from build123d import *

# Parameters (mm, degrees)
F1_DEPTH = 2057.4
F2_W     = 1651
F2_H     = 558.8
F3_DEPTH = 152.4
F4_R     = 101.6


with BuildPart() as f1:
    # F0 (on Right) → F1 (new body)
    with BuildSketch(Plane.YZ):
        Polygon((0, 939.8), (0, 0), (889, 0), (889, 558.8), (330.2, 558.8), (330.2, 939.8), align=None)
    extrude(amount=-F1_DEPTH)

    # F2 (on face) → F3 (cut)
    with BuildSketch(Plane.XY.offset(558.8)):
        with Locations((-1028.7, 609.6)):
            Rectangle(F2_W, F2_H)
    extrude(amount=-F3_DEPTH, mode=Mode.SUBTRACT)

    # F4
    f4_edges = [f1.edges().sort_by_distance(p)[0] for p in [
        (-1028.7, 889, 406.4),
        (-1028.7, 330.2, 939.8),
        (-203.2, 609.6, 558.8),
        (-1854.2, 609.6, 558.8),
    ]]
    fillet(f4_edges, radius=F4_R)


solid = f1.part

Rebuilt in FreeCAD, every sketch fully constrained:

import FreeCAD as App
import Part
import Sketcher
Q = App.Units.Quantity


def edges_at(feature, points):
    """Names of the edges that pass closest to the given points."""
    edges = feature.Shape.Edges
    near = lambda p: min(range(len(edges)), key=lambda i: edges[i].distToShape(Part.Vertex(*p))[0])
    return sorted({f"Edge{near(p) + 1}" for p in points})

doc = App.newDocument("Part")
body = doc.addObject("PartDesign::Body", "Body")

sketch1 = body.newObject("Sketcher::SketchObject", "Sketch")
sketch1.AttachmentSupport = (doc.getObject("YZ_Plane"), [""])
sketch1.MapMode = "FlatFace"
sketch1.addGeometry(Part.LineSegment(App.Vector(0, 940, 0), App.Vector(0, 0, 0)), False)
sketch1.addGeometry(Part.LineSegment(App.Vector(0, 0, 0), App.Vector(889, 0, 0)), False)
sketch1.addGeometry(Part.LineSegment(App.Vector(889, 0, 0), App.Vector(889, 559, 0)), False)
sketch1.addGeometry(Part.LineSegment(App.Vector(889, 559, 0), App.Vector(330, 559, 0)), False)
sketch1.addGeometry(Part.LineSegment(App.Vector(330, 559, 0), App.Vector(330, 940, 0)), False)
sketch1.addGeometry(Part.LineSegment(App.Vector(330, 940, 0), App.Vector(0, 940, 0)), False)
sketch1.addConstraint(Sketcher.Constraint("Coincident", 0, 2, 1, 1))
sketch1.addConstraint(Sketcher.Constraint("Coincident", 1, 2, 2, 1))
sketch1.addConstraint(Sketcher.Constraint("Coincident", 2, 2, 3, 1))
sketch1.addConstraint(Sketcher.Constraint("Coincident", 3, 2, 4, 1))
sketch1.addConstraint(Sketcher.Constraint("Coincident", 4, 2, 5, 1))
sketch1.addConstraint(Sketcher.Constraint("Coincident", 5, 2, 0, 1))
sketch1.addConstraint(Sketcher.Constraint("Vertical", 0))
sketch1.addConstraint(Sketcher.Constraint("Horizontal", 1))
sketch1.addConstraint(Sketcher.Constraint("Vertical", 2))
sketch1.addConstraint(Sketcher.Constraint("Horizontal", 3))
sketch1.addConstraint(Sketcher.Constraint("Vertical", 4))
sketch1.addConstraint(Sketcher.Constraint("Horizontal", 5))
sketch1.addConstraint(Sketcher.Constraint("Coincident", 0, 2, -1, 1))
sketch1.addConstraint(Sketcher.Constraint("Equal", 3, 2))
sketch1.addConstraint(Sketcher.Constraint("DistanceX", 1, 1, 1, 2, Q("35 in")))
sketch1.addConstraint(Sketcher.Constraint("DistanceX", 3, 2, 3, 1, Q("22 in")))
sketch1.addConstraint(Sketcher.Constraint("DistanceY", 0, 2, 0, 1, Q("37 in")))
pad1 = body.newObject("PartDesign::Pad", "Pad")
pad1.Profile = sketch1
pad1.Length = Q("81 in")
pad1.Reversed = True

sketch2 = body.newObject("Sketcher::SketchObject", "Sketch001")
sketch2.AttachmentSupport = (doc.getObject("XY_Plane"), [""])
sketch2.MapMode = "FlatFace"
sketch2.AttachmentOffset = App.Placement(App.Vector(0, 0, 22 * 25.4), App.Rotation())
sketch2.addGeometry(Part.LineSegment(App.Vector(-1854, 889, 0), App.Vector(-1854, 330, 0)), False)
sketch2.addGeometry(Part.LineSegment(App.Vector(-1854, 330, 0), App.Vector(-203, 330, 0)), False)
sketch2.addGeometry(Part.LineSegment(App.Vector(-203, 330, 0), App.Vector(-203, 889, 0)), False)
sketch2.addGeometry(Part.LineSegment(App.Vector(-203, 889, 0), App.Vector(-1854, 889, 0)), False)
sketch2.addConstraint(Sketcher.Constraint("Coincident", 0, 2, 1, 1))
sketch2.addConstraint(Sketcher.Constraint("Coincident", 1, 2, 2, 1))
sketch2.addConstraint(Sketcher.Constraint("Coincident", 2, 2, 3, 1))
sketch2.addConstraint(Sketcher.Constraint("Coincident", 3, 2, 0, 1))
sketch2.addConstraint(Sketcher.Constraint("Vertical", 0))
sketch2.addConstraint(Sketcher.Constraint("Horizontal", 1))
sketch2.addConstraint(Sketcher.Constraint("Vertical", 2))
sketch2.addConstraint(Sketcher.Constraint("Horizontal", 3))
sketch2.addConstraint(Sketcher.Constraint("DistanceX", 1, 1, 1, 2, Q("65 in")))
sketch2.addConstraint(Sketcher.Constraint("DistanceY", 0, 2, 0, 1, Q("22 in")))
sketch2.addConstraint(Sketcher.Constraint("DistanceX", 0, 2, -1, 1, Q("73 in")))
sketch2.addConstraint(Sketcher.Constraint("DistanceY", -1, 1, 0, 2, Q("13 in")))
pocket1 = body.newObject("PartDesign::Pocket", "Pocket")
pocket1.Profile = sketch2
pocket1.Length = Q("6 in")
doc.recompute()

fillet = body.newObject("PartDesign::Fillet", "Fillet")
fillet.Base = (pocket1, edges_at(pocket1, [
    (-1028.7, 889, 406.4),
    (-1028.7, 330.2, 939.8),
    (-203.2, 609.6, 558.8),
    (-1854.2, 609.6, 558.8),
]))
fillet.Radius = Q("4 in")

doc.recompute()
